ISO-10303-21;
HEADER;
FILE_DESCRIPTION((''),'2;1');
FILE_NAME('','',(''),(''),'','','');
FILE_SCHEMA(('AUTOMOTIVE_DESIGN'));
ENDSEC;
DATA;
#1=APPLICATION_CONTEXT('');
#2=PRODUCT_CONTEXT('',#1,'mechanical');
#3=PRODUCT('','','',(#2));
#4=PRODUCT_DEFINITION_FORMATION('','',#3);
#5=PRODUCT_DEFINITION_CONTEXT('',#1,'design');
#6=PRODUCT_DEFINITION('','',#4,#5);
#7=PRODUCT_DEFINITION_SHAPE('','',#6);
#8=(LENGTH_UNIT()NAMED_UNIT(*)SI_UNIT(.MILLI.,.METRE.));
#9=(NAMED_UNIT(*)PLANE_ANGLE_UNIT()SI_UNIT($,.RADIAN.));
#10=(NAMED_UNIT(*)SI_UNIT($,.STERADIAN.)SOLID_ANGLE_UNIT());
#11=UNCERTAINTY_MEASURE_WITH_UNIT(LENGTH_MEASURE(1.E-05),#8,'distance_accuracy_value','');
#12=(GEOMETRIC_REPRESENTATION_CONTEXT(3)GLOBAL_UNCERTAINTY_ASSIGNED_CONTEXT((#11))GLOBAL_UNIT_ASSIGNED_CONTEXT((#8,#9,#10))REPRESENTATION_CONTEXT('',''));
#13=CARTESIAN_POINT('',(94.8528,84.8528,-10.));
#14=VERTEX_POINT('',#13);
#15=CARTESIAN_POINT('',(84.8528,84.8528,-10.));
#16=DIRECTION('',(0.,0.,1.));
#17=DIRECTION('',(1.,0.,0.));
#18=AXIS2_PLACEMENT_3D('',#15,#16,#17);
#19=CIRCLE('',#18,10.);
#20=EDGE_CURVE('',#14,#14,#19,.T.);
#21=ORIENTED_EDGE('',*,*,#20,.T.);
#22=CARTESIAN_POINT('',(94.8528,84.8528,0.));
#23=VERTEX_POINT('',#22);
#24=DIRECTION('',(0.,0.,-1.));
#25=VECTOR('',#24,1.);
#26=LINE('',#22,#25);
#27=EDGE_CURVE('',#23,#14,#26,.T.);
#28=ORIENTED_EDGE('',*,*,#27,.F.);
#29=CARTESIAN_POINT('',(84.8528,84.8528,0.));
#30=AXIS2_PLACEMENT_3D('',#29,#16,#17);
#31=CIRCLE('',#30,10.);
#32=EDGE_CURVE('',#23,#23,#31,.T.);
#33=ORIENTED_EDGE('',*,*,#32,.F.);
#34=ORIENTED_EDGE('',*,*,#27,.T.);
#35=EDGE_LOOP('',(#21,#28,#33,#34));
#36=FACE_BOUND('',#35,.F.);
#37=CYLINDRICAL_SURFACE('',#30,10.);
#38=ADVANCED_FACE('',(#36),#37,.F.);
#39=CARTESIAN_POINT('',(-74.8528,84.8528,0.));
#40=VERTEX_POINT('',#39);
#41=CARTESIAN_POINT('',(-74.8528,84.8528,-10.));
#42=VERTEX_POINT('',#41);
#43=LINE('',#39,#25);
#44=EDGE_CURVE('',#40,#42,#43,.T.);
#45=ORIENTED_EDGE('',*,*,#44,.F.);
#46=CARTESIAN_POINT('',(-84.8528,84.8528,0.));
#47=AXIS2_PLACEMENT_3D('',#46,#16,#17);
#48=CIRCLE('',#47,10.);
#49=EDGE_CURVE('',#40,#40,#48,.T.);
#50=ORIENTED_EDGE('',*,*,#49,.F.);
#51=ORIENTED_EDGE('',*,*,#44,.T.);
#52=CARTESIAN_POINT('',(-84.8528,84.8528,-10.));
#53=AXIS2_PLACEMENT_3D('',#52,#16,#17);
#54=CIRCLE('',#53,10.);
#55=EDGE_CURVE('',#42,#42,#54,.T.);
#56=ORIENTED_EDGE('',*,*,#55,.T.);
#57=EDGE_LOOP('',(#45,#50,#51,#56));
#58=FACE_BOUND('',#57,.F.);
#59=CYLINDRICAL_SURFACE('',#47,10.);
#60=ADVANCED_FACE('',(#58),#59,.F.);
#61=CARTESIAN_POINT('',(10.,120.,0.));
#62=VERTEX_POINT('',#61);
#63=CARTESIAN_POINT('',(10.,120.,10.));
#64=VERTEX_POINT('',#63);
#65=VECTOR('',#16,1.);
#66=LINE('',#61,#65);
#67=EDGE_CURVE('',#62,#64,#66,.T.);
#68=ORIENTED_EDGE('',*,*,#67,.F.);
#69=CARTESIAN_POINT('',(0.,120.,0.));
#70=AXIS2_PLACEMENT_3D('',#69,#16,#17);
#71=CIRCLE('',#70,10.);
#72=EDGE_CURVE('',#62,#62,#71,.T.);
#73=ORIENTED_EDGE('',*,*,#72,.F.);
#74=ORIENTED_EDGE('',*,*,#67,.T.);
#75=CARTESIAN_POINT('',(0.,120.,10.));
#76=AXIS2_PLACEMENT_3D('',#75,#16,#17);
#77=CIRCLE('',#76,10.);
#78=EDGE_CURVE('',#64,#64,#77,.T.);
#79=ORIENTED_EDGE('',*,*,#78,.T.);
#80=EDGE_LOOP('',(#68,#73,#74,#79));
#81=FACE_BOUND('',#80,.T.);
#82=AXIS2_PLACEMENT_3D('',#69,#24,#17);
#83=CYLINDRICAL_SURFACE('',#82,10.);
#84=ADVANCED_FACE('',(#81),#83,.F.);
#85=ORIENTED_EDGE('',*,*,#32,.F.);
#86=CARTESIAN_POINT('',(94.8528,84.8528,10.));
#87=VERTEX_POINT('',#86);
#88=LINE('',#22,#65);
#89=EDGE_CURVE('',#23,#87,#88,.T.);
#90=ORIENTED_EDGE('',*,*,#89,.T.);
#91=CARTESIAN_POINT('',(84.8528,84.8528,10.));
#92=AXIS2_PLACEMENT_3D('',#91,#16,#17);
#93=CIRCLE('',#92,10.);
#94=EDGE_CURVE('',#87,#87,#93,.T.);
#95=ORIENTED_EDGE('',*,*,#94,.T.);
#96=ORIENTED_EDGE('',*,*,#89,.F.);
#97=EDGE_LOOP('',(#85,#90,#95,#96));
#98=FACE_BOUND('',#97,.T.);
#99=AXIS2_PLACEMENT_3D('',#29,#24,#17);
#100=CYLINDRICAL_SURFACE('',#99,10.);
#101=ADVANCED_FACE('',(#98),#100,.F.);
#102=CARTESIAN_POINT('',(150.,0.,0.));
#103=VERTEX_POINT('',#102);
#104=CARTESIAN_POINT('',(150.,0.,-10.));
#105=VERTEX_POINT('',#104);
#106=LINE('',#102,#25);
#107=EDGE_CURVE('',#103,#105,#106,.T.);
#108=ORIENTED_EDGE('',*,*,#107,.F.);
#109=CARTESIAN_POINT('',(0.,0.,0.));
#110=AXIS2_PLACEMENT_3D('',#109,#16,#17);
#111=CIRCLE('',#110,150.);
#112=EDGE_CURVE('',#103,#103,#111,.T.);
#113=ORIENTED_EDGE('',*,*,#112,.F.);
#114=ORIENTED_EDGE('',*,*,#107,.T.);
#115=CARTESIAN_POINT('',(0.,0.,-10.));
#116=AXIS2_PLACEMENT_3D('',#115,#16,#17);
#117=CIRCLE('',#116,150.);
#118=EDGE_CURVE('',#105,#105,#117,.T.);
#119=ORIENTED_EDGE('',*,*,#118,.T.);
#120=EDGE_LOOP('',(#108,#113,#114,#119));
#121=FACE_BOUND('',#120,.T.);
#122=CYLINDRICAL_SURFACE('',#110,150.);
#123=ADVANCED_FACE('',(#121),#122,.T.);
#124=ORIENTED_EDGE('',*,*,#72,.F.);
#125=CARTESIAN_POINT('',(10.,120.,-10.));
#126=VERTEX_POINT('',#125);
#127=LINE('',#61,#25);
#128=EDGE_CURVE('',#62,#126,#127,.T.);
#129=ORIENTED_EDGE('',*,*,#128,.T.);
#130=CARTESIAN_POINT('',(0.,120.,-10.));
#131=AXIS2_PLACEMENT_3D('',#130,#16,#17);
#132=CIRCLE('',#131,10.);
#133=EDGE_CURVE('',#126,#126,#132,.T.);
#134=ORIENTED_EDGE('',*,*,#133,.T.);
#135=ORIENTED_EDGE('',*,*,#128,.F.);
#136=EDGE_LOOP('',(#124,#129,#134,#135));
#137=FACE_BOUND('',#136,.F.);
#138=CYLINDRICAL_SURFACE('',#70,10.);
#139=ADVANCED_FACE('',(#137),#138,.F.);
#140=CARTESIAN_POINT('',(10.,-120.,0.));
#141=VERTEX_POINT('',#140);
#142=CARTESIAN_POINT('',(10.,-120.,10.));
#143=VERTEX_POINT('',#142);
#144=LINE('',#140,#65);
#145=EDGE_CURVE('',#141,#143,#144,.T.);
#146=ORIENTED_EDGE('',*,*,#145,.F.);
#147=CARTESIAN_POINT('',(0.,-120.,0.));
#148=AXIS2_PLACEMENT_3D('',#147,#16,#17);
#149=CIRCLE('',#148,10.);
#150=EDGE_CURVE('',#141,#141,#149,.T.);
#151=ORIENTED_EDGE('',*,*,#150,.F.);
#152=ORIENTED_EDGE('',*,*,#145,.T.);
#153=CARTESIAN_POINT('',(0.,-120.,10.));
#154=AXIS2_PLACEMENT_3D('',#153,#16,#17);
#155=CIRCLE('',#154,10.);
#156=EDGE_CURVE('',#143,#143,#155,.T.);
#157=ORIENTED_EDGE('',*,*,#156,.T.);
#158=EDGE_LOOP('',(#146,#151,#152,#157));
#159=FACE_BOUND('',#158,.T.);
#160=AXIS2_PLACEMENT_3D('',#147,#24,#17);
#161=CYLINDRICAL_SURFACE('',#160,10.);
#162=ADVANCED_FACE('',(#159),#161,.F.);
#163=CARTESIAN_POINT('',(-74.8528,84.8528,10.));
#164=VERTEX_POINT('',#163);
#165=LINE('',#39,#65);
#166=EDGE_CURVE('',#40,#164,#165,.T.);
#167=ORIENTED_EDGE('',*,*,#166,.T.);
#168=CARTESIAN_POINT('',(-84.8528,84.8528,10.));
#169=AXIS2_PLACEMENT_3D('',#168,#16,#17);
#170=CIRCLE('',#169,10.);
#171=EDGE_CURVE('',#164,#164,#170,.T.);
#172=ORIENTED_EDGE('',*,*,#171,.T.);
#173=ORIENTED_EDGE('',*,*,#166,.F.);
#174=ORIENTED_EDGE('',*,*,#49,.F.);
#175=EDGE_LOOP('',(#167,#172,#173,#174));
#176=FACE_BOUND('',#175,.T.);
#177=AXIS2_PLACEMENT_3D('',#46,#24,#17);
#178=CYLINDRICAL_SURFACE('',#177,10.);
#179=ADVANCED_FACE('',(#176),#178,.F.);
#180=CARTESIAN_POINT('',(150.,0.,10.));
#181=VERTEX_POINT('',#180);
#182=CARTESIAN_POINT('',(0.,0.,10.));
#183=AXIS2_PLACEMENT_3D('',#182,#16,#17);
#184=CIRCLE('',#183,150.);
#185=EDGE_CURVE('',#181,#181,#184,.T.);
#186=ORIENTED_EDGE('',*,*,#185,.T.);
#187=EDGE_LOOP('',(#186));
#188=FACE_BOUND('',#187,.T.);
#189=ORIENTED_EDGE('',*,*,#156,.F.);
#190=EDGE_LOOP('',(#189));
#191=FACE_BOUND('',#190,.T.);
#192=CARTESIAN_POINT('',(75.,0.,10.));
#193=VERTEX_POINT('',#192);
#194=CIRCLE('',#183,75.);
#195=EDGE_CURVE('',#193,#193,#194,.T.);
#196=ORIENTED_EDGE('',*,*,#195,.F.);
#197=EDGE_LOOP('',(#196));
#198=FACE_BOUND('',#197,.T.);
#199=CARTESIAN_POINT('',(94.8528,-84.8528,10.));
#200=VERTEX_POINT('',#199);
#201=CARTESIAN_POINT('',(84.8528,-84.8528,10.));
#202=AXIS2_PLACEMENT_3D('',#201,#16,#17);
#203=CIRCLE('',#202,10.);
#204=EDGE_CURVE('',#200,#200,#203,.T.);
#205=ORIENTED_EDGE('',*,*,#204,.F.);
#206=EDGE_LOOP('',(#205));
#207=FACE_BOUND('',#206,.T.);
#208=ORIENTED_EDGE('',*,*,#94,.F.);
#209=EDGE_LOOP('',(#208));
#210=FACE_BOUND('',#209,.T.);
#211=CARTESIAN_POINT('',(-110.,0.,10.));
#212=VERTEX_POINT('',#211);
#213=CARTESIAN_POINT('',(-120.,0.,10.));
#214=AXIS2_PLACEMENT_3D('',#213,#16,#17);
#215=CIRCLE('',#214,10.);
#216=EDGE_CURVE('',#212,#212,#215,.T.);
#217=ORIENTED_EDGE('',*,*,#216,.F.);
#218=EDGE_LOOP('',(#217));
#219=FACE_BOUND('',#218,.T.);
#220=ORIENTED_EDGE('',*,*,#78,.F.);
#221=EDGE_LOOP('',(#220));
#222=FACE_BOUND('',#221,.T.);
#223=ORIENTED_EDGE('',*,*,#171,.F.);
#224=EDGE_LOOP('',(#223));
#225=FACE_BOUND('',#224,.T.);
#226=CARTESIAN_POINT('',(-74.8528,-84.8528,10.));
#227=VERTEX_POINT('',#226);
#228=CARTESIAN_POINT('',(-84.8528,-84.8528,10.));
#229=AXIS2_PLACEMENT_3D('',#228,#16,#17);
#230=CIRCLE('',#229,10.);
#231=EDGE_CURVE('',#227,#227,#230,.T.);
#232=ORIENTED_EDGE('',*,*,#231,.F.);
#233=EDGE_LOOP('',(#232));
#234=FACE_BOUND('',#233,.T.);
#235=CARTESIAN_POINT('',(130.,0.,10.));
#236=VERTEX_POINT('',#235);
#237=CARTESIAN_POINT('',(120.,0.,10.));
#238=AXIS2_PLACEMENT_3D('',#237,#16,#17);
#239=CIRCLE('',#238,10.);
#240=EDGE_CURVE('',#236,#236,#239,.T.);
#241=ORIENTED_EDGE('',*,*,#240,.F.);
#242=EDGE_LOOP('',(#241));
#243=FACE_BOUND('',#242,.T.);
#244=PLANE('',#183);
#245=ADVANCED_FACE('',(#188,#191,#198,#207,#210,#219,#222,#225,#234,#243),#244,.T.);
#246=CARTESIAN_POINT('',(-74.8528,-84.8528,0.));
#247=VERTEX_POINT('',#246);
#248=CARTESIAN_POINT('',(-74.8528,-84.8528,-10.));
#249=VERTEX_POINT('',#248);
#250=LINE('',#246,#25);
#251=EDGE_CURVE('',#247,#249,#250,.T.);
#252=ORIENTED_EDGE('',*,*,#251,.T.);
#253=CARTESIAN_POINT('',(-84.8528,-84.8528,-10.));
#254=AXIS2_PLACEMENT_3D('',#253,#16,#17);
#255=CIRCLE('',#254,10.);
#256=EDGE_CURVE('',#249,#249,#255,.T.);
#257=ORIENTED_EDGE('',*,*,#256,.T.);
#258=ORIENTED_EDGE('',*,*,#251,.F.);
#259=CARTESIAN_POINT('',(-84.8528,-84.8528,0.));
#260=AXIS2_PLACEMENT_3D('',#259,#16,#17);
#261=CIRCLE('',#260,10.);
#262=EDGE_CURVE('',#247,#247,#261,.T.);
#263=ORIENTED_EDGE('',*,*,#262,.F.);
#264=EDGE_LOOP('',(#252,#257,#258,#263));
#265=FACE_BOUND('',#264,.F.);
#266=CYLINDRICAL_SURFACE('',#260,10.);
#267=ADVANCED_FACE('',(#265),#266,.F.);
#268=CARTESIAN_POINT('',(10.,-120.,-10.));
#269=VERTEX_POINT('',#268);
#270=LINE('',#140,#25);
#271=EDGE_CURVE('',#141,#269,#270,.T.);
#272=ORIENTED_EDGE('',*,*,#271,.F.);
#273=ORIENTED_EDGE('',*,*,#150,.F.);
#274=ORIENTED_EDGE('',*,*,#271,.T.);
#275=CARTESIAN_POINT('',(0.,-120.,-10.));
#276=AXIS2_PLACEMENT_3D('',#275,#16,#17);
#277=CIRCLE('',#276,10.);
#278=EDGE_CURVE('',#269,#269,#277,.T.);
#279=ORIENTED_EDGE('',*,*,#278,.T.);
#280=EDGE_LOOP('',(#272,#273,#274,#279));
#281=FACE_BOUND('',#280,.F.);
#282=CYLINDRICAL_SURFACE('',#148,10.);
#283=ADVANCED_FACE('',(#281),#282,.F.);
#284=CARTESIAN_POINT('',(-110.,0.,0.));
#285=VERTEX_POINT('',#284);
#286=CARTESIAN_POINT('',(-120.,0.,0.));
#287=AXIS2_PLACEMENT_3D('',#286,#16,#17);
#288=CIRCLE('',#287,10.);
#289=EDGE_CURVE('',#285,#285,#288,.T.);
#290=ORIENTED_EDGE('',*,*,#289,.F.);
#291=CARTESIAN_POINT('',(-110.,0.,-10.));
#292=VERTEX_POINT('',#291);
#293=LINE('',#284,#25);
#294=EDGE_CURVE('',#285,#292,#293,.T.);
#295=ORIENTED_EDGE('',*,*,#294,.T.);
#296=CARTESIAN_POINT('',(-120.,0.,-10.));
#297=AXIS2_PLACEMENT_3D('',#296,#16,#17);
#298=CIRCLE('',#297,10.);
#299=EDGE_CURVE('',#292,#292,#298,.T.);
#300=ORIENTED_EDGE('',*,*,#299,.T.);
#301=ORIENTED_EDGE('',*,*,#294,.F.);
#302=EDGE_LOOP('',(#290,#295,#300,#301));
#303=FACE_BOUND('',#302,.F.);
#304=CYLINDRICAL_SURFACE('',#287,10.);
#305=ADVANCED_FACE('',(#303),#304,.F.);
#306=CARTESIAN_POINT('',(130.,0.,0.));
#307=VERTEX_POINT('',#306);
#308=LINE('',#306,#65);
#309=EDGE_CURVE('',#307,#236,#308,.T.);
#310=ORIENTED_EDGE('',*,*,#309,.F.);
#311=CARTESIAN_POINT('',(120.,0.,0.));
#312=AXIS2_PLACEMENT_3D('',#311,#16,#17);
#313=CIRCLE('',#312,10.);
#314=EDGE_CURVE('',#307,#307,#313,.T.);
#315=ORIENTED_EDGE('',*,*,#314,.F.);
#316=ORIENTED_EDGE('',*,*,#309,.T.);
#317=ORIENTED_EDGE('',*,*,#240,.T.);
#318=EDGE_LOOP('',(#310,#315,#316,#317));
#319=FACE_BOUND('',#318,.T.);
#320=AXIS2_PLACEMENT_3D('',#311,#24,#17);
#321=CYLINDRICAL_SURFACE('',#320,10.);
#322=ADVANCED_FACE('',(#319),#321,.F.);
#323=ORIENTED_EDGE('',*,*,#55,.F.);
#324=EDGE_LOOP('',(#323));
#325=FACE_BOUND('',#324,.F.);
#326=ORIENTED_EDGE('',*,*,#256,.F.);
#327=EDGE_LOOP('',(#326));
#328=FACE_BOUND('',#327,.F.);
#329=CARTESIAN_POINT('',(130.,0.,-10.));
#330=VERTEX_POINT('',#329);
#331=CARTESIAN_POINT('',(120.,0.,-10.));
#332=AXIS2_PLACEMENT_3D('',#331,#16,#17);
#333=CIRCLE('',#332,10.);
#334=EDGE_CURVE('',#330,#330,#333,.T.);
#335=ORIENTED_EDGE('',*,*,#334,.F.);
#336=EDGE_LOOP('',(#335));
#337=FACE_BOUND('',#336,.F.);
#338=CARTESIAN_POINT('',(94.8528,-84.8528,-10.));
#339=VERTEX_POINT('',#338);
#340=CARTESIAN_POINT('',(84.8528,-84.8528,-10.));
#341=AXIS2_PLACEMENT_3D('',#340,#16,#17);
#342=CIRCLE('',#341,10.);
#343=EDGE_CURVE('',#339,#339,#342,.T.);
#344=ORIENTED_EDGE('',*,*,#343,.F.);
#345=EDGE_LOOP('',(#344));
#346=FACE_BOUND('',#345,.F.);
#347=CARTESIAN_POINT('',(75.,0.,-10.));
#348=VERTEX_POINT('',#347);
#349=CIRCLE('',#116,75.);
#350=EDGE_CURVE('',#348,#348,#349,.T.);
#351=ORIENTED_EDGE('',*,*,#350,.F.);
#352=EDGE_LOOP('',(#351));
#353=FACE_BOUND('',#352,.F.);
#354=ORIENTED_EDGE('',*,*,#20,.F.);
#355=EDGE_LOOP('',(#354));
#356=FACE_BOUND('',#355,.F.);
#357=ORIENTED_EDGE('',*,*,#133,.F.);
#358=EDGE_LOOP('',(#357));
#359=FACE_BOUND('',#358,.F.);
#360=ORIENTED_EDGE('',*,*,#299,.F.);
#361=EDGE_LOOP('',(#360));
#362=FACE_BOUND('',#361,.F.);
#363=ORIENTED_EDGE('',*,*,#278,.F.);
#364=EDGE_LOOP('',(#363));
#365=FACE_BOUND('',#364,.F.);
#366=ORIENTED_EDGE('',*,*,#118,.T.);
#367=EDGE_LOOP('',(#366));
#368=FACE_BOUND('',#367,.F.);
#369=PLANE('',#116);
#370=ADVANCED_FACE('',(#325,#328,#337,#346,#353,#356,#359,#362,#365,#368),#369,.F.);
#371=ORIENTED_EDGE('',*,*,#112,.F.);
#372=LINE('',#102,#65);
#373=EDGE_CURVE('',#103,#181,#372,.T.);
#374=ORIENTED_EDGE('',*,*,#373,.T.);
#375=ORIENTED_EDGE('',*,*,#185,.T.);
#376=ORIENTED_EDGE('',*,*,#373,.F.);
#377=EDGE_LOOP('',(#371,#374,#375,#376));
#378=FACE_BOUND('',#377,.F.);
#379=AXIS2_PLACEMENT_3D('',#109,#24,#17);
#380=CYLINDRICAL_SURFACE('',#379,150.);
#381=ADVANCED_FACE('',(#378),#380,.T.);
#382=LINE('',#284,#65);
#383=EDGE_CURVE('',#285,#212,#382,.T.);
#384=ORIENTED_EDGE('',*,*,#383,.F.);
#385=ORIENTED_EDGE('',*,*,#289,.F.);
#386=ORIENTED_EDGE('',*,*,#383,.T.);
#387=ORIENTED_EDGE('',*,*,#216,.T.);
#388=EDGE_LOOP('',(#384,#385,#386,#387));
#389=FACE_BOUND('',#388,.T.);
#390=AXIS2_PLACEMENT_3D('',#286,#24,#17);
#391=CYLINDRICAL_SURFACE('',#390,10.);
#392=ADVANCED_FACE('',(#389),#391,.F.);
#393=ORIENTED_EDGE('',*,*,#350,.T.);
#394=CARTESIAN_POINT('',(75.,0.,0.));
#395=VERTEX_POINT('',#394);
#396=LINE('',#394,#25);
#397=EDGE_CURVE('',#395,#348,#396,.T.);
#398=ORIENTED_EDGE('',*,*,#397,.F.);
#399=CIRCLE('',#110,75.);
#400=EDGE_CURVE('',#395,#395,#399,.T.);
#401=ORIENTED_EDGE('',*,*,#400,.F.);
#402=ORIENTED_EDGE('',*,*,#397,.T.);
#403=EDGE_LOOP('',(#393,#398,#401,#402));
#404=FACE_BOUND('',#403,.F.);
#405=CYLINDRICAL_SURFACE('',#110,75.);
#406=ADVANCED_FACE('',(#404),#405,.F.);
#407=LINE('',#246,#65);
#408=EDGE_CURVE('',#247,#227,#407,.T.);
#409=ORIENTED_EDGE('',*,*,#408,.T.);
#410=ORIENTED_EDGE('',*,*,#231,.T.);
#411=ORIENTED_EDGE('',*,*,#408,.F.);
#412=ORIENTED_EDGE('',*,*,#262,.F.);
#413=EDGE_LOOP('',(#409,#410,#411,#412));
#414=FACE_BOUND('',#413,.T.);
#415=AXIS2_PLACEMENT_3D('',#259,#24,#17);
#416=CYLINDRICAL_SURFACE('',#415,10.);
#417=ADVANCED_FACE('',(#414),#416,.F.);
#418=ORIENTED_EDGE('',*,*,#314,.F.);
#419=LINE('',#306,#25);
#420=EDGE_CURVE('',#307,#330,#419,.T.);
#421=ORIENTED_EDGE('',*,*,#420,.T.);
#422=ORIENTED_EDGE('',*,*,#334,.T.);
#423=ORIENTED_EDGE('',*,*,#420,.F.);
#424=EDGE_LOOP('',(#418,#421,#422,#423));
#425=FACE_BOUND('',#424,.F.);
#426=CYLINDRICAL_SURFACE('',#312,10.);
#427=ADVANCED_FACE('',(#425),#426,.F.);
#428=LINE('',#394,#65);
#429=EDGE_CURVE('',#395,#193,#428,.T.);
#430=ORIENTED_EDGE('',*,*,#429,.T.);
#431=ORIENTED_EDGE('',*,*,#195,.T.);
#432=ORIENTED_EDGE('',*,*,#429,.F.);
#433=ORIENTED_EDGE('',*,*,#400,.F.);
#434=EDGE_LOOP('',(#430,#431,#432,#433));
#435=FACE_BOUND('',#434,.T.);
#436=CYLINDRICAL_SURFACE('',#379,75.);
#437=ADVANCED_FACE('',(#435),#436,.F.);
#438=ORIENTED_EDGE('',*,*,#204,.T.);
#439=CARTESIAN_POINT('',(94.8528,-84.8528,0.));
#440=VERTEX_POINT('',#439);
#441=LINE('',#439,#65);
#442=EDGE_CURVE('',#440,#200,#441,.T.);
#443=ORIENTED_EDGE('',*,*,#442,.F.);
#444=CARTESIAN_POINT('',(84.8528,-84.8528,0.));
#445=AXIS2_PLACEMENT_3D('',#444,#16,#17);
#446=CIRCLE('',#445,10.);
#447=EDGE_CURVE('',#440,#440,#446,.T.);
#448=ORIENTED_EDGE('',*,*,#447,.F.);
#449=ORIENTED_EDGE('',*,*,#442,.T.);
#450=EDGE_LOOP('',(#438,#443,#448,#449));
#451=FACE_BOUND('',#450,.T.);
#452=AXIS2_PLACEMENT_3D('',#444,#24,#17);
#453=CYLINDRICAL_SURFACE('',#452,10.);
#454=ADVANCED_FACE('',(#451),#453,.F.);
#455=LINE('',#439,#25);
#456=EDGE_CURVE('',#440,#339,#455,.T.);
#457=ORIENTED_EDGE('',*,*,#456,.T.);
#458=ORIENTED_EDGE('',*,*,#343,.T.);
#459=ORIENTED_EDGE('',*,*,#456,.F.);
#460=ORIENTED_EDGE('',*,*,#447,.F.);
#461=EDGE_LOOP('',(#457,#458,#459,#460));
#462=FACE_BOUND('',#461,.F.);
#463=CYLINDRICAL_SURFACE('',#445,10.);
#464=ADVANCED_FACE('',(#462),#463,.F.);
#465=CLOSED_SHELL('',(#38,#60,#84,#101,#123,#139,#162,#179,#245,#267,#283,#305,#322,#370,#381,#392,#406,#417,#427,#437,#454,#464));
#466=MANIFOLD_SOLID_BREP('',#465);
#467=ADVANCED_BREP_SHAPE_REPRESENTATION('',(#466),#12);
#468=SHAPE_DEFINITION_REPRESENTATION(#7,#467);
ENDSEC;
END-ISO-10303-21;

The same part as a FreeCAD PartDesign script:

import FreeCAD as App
import Part
import Sketcher
from FreeCAD import Vector
Q = App.Units.Quantity

doc = App.newDocument("Part")
params = doc.addObject("Spreadsheet::Sheet", "Params")
for row, (alias, value) in enumerate([
    ("sketch1_diameter", "300 mm"),
    ("sketch1_diameter2", "20 mm"),
    ("sketch1_diameter3", "150 mm"),
    ("pad1_length", "20 mm"),
], start=1):
    params.set(f"A{row}", alias)
    params.set(f"B{row}", "=" + value)
    params.setAlias(f"B{row}", alias)

body = doc.addObject("PartDesign::Body", "Body")

# Sketch on XY plane
sketch1 = doc.addObject("Sketcher::SketchObject", "Sketch")
body.addObject(sketch1)
sketch1.AttachmentSupport = (doc.XY_Plane, [""])
sketch1.MapMode = "FlatFace"
sketch1.addGeometry([
    Part.Circle(Vector(0, 0, 0), Vector(0, 0, 1), 150),  # 0
    Part.Circle(Vector(-85, -85, 0), Vector(0, 0, 1), 10),  # 1
    Part.Circle(Vector(0, -120, 0), Vector(0, 0, 1), 10),  # 2
    Part.Circle(Vector(85, -85, 0), Vector(0, 0, 1), 10),  # 3
    Part.Circle(Vector(-120, 0, 0), Vector(0, 0, 1), 10),  # 4
    Part.Circle(Vector(-85, 85, 0), Vector(0, 0, 1), 10),  # 5
    Part.Circle(Vector(0, 0, 0), Vector(0, 0, 1), 75),  # 6
    Part.Circle(Vector(120, 0, 0), Vector(0, 0, 1), 10),  # 7
    Part.Circle(Vector(0, 120, 0), Vector(0, 0, 1), 10),  # 8
    Part.Circle(Vector(85, 85, 0), Vector(0, 0, 1), 10),  # 9
], False)
sketch1.addConstraint([
    Sketcher.Constraint("Coincident", 0, 3, -1, 1),
    Sketcher.Constraint("Coincident", 6, 3, -1, 1),
    Sketcher.Constraint("Equal", 1, 2),
    Sketcher.Constraint("Equal", 2, 3),
    Sketcher.Constraint("Equal", 3, 4),
    Sketcher.Constraint("Equal", 4, 5),
    Sketcher.Constraint("Equal", 5, 7),
    Sketcher.Constraint("Equal", 7, 8),
    Sketcher.Constraint("Equal", 8, 9),
    Sketcher.Constraint("Symmetric", 3, 3, 5, 3, -1, 1),
    Sketcher.Constraint("Symmetric", 4, 3, 7, 3, -1, 1),
    Sketcher.Constraint("Symmetric", 2, 3, 8, 3, -1, 1),
    Sketcher.Constraint("Symmetric", 1, 3, 9, 3, -1, 1),
    Sketcher.Constraint("Symmetric", 1, 3, 3, 3, -2),
    Sketcher.Constraint("PointOnObject", 2, 3, -2),
    Sketcher.Constraint("PointOnObject", 4, 3, -1),
    Sketcher.Constraint("Diameter", 0, Q("300 mm")),
    Sketcher.Constraint("Diameter", 1, Q("20 mm")),
    Sketcher.Constraint("Diameter", 6, Q("150 mm")),
    Sketcher.Constraint("DistanceY", 2, 3, -1, 1, Q("120 mm")),
    Sketcher.Constraint("DistanceX", 4, 3, -1, 1, Q("120 mm")),
    Sketcher.Constraint("DistanceX", 1, 3, -1, 1, Q("84.8528 mm")),
    Sketcher.Constraint("DistanceY", 1, 3, -1, 1, Q("84.8528 mm")),
])
sketch1.setExpression("Constraints[16]", "Params.sketch1_diameter")
sketch1.setExpression("Constraints[17]", "Params.sketch1_diameter2")
sketch1.setExpression("Constraints[18]", "Params.sketch1_diameter3")
pad1 = doc.addObject("PartDesign::Pad", "Pad")
body.addObject(pad1)
pad1.Profile = sketch1
pad1.setExpression("Length", "Params.pad1_length")
pad1.Midplane = True

doc.recompute()
